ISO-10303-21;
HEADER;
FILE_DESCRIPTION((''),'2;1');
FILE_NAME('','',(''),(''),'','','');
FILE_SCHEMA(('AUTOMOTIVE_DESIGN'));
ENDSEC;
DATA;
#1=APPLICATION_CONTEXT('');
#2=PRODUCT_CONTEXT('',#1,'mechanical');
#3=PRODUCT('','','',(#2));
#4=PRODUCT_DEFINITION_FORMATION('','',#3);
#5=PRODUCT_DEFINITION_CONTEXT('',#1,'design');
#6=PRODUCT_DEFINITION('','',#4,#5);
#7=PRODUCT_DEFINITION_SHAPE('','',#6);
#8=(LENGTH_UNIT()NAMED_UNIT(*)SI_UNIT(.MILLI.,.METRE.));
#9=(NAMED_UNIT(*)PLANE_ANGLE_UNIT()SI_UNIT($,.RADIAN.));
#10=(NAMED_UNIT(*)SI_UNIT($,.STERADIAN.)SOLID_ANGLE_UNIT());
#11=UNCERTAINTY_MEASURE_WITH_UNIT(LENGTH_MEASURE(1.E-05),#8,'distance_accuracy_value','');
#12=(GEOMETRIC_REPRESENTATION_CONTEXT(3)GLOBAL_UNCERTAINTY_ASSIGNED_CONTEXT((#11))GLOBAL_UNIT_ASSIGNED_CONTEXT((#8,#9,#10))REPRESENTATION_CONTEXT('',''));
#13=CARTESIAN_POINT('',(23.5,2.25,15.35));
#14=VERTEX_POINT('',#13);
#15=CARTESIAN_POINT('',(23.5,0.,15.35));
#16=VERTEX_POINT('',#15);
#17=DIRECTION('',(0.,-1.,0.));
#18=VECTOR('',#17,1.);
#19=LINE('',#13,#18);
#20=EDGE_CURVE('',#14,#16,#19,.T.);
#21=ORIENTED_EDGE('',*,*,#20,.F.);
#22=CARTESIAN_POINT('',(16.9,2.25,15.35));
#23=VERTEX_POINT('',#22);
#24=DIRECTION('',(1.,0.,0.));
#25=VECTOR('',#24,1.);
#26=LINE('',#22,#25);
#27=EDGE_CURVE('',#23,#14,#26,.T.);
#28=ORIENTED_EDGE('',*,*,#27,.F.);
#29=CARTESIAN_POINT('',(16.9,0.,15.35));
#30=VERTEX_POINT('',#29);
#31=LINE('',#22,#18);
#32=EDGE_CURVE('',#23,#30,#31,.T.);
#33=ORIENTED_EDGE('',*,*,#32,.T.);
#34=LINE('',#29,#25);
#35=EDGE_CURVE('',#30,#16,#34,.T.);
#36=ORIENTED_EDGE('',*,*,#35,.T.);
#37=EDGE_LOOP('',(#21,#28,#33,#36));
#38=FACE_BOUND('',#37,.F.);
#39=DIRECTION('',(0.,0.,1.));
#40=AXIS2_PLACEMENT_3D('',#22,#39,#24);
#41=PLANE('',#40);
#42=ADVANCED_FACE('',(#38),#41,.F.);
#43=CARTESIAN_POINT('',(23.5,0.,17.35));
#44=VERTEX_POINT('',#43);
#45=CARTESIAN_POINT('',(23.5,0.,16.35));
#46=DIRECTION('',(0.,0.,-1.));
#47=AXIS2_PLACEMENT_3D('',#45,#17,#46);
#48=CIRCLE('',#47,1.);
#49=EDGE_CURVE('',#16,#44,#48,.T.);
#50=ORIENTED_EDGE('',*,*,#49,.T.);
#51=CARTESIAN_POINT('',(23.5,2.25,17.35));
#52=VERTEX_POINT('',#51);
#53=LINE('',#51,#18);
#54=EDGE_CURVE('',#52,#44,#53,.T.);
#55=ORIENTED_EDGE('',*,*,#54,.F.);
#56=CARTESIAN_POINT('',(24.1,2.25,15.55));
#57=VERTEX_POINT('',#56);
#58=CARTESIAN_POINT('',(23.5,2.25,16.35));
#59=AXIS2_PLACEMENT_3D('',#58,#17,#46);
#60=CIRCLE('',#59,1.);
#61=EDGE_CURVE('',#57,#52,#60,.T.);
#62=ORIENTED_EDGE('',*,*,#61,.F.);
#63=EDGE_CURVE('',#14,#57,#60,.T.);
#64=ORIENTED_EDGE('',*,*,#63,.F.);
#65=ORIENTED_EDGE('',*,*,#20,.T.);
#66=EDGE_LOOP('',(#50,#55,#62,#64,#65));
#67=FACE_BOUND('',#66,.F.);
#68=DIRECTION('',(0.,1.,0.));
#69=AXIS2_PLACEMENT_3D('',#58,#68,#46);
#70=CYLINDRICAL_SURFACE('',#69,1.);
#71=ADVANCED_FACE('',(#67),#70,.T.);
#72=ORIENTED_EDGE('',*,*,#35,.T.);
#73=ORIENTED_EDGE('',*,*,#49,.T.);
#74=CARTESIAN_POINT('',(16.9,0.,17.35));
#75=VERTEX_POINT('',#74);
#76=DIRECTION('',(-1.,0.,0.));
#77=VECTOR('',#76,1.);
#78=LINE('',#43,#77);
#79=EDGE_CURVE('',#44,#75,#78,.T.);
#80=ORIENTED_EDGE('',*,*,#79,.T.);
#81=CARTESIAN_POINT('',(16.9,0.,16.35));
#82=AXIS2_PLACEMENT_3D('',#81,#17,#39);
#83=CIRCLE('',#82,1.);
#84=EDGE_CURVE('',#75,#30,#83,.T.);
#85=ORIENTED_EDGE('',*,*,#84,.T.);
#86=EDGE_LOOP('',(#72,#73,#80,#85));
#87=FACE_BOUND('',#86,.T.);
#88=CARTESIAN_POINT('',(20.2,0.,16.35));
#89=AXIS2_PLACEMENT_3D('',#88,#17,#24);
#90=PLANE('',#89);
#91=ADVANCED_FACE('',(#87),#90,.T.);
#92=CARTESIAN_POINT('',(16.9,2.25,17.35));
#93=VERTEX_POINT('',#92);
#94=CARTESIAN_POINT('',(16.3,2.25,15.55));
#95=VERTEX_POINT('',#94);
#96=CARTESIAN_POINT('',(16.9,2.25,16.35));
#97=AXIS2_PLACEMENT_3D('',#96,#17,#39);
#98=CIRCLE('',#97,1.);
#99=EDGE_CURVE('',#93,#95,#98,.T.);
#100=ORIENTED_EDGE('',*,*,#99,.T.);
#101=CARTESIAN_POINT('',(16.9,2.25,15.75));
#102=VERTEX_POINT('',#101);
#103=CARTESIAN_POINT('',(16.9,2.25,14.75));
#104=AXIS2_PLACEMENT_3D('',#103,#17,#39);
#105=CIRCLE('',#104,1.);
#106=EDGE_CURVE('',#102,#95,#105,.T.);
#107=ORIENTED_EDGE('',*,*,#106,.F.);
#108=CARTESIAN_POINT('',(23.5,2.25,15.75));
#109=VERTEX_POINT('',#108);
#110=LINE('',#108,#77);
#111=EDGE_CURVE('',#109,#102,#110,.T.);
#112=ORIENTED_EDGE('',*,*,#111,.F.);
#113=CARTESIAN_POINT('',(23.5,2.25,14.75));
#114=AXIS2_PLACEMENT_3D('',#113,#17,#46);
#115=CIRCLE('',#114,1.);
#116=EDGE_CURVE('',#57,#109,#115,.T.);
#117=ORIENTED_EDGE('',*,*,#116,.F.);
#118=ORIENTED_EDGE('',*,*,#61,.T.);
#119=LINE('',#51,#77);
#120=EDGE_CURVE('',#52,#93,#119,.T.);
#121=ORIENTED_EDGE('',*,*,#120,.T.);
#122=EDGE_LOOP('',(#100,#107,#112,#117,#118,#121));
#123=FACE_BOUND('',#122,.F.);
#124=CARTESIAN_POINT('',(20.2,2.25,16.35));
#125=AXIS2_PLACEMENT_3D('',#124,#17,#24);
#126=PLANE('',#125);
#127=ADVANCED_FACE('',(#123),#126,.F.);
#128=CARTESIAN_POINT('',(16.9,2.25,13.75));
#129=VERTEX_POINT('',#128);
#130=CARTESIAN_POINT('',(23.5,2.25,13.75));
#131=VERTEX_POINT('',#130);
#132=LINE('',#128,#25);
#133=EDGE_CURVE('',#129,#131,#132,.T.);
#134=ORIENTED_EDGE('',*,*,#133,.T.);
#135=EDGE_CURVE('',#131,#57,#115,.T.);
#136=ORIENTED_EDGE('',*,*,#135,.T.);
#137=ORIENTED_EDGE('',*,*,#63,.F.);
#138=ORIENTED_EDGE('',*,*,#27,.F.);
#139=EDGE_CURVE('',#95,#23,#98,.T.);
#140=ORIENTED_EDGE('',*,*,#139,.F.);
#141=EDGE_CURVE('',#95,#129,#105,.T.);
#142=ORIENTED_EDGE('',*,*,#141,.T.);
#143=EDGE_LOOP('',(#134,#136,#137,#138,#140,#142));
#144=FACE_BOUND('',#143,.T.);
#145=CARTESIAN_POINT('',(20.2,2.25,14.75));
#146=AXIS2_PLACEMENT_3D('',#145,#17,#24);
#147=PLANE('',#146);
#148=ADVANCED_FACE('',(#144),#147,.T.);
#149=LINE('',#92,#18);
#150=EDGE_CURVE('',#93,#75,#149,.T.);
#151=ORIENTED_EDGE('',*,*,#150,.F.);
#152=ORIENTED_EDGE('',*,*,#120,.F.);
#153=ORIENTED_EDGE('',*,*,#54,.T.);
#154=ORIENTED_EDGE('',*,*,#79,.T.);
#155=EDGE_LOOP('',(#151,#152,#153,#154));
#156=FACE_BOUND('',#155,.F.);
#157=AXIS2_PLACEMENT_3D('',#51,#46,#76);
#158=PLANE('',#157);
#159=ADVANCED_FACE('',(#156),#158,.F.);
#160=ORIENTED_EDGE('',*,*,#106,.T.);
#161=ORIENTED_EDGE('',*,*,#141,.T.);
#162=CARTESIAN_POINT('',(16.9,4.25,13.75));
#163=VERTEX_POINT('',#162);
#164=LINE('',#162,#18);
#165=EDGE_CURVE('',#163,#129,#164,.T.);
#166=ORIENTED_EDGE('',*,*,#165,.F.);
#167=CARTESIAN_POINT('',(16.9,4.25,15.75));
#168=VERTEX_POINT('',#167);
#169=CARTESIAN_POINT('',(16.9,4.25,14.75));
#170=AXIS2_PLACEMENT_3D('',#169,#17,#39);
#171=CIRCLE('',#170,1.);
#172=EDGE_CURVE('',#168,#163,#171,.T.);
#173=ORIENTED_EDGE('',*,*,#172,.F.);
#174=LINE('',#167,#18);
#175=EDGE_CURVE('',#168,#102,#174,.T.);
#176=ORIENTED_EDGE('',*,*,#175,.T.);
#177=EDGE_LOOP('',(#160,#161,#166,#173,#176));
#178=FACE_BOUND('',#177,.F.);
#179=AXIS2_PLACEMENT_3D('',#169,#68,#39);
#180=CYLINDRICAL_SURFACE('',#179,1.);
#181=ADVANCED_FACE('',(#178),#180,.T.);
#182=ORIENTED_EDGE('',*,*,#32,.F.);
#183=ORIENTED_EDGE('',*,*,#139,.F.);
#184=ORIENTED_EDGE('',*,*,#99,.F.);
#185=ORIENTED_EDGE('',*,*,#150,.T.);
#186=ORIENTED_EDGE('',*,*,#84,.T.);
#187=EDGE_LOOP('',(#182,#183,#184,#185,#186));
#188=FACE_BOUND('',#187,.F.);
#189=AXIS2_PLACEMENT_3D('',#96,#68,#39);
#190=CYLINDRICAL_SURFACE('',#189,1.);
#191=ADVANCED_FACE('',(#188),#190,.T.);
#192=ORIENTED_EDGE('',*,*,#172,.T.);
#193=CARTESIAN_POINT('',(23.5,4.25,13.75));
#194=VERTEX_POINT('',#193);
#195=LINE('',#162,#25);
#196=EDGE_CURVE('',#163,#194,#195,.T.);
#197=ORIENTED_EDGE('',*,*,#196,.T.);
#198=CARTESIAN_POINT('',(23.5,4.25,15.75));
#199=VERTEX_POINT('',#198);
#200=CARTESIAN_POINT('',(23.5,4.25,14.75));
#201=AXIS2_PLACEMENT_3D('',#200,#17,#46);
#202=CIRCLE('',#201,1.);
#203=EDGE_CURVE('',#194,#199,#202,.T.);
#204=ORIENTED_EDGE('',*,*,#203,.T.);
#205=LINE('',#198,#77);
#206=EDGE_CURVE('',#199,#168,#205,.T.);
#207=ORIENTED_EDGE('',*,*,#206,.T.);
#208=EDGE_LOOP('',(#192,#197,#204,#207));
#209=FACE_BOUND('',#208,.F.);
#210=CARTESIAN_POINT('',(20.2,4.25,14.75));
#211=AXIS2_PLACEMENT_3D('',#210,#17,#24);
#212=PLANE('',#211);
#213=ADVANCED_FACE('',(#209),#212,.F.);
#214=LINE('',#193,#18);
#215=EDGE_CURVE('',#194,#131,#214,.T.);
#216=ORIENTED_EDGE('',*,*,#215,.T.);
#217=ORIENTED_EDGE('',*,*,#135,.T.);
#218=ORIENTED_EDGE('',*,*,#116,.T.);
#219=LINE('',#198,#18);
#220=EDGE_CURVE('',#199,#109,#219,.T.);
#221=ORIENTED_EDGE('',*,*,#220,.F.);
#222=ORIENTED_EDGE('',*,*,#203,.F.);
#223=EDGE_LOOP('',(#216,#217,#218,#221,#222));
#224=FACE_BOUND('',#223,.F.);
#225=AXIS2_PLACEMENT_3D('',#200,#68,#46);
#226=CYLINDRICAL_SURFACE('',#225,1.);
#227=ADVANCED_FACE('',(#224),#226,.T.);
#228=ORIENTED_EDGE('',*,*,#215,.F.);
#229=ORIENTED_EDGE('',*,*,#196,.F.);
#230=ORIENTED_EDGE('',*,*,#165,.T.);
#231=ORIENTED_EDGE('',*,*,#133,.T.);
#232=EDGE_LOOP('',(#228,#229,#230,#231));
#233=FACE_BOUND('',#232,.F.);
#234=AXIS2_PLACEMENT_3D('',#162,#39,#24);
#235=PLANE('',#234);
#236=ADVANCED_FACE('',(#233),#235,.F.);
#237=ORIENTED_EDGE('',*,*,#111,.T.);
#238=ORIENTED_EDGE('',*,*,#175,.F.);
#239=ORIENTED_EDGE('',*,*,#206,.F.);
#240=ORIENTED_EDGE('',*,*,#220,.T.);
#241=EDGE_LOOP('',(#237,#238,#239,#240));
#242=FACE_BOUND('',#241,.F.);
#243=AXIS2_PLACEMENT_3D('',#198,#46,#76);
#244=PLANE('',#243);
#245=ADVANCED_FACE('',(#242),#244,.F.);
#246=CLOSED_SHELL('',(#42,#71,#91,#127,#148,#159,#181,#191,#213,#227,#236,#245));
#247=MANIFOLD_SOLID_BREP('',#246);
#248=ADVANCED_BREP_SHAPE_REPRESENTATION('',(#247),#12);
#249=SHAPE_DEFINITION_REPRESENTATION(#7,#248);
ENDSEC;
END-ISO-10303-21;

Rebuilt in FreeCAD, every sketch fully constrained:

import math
import FreeCAD as App
import Part
import Sketcher

V = App.Vector
Q = App.Units.Quantity

doc = App.newDocument("Part")
body = doc.addObject("PartDesign::Body", "Body")

# Sketch on XZ plane
sketch1 = body.newObject("Sketcher::SketchObject", "Sketch")
sketch1.AttachmentSupport = (doc.getObject("XZ_Plane"), [""])
sketch1.MapMode = "FlatFace"
sketch1.addGeometry(Part.ArcOfCircle(Part.Circle(V(16.9, 14.8, 0), V(0, 0, 1), 1), math.radians(90), math.radians(270)), False)
sketch1.addGeometry(Part.LineSegment(V(16.9, 13.8, 0), V(23.5, 13.8, 0)), False)
sketch1.addGeometry(Part.ArcOfCircle(Part.Circle(V(23.5, 14.8, 0), V(0, 0, 1), 1), math.radians(-90), math.radians(90)), False)
sketch1.addGeometry(Part.LineSegment(V(23.5, 15.8, 0), V(16.9, 15.8, 0)), False)
sketch1.addConstraint(Sketcher.Constraint("Tangent", 0, 2, 1, 1))
sketch1.addConstraint(Sketcher.Constraint("Tangent", 1, 2, 2, 1))
sketch1.addConstraint(Sketcher.Constraint("Tangent", 2, 2, 3, 1))
sketch1.addConstraint(Sketcher.Constraint("Tangent", 3, 2, 0, 1))
sketch1.addConstraint(Sketcher.Constraint("Horizontal", 1))
sketch1.addConstraint(Sketcher.Constraint("Horizontal", 3))
sketch1.addConstraint(Sketcher.Constraint("Radius", 0, Q("1 mm")))
sketch1.addConstraint(Sketcher.Constraint("DistanceX", 1, 1, 1, 2, Q("6.6 mm")))
sketch1.addConstraint(Sketcher.Constraint("DistanceX", -1, 1, 0, 3, Q("16.9 mm")))
sketch1.addConstraint(Sketcher.Constraint("DistanceY", -1, 1, 0, 3, Q("14.75 mm")))
pad1 = body.newObject("PartDesign::Pad", "Pad")
pad1.Profile = sketch1
pad1.Length = 2
body2 = doc.addObject("PartDesign::Body", "Body001")
doc.recompute()

body.Placement = App.Placement(V(0, 4, 0), App.Rotation(V(0, 0, 1), 0))
boolean = body2.newObject("PartDesign::Boolean", "Boolean")
boolean.Type = "Fuse"
boolean.addObjects([body])
body3 = doc.addObject("PartDesign::Body", "Body002")

# Sketch on XZ plane
sketch2 = body3.newObject("Sketcher::SketchObject", "Sketch001")
sketch2.AttachmentSupport = (doc.getObject("XZ_Plane002"), [""])
sketch2.MapMode = "FlatFace"
sketch2.addGeometry(Part.ArcOfCircle(Part.Circle(V(16.9, 16.4, 0), V(0, 0, 1), 1), math.radians(90), math.radians(270)), False)
sketch2.addGeometry(Part.LineSegment(V(16.9, 15.3, 0), V(23.5, 15.3, 0)), False)
sketch2.addGeometry(Part.ArcOfCircle(Part.Circle(V(23.5, 16.4, 0), V(0, 0, 1), 1), math.radians(-90), math.radians(90)), False)
sketch2.addGeometry(Part.LineSegment(V(23.5, 17.4, 0), V(16.9, 17.4, 0)), False)
sketch2.addConstraint(Sketcher.Constraint("Tangent", 0, 2, 1, 1))
sketch2.addConstraint(Sketcher.Constraint("Tangent", 1, 2, 2, 1))
sketch2.addConstraint(Sketcher.Constraint("Tangent", 2, 2, 3, 1))
sketch2.addConstraint(Sketcher.Constraint("Tangent", 3, 2, 0, 1))
sketch2.addConstraint(Sketcher.Constraint("Horizontal", 1))
sketch2.addConstraint(Sketcher.Constraint("Horizontal", 3))
sketch2.addConstraint(Sketcher.Constraint("Radius", 0, Q("1 mm")))
sketch2.addConstraint(Sketcher.Constraint("DistanceX", 1, 1, 1, 2, Q("6.6 mm")))
sketch2.addConstraint(Sketcher.Constraint("DistanceX", -1, 1, 0, 3, Q("16.9 mm")))
sketch2.addConstraint(Sketcher.Constraint("DistanceY", -1, 1, 0, 3, Q("16.35 mm")))
pad2 = body3.newObject("PartDesign::Pad", "Pad001")
pad2.Profile = sketch2
pad2.Length = 2.25
body4 = doc.addObject("PartDesign::Body", "Body003")
doc.recompute()

body3.Placement = App.Placement(V(0, 2, 0), App.Rotation(V(0, 0, 1), 0))
boolean2 = body4.newObject("PartDesign::Boolean", "Boolean001")
boolean2.Type = "Fuse"
boolean2.addObjects([body3])
doc.recompute()

boolean3 = body4.newObject("PartDesign::Boolean", "Boolean002")
boolean3.Type = "Fuse"
boolean3.addObjects([body2])
body5 = doc.addObject("PartDesign::Body", "Body004")
doc.recompute()

body4.Placement = App.Placement(V(0, 0.25, 0), App.Rotation(V(0, 0, 1), 0))
boolean4 = body5.newObject("PartDesign::Boolean", "Boolean003")
boolean4.Type = "Fuse"
boolean4.addObjects([body4])

doc.recompute()
